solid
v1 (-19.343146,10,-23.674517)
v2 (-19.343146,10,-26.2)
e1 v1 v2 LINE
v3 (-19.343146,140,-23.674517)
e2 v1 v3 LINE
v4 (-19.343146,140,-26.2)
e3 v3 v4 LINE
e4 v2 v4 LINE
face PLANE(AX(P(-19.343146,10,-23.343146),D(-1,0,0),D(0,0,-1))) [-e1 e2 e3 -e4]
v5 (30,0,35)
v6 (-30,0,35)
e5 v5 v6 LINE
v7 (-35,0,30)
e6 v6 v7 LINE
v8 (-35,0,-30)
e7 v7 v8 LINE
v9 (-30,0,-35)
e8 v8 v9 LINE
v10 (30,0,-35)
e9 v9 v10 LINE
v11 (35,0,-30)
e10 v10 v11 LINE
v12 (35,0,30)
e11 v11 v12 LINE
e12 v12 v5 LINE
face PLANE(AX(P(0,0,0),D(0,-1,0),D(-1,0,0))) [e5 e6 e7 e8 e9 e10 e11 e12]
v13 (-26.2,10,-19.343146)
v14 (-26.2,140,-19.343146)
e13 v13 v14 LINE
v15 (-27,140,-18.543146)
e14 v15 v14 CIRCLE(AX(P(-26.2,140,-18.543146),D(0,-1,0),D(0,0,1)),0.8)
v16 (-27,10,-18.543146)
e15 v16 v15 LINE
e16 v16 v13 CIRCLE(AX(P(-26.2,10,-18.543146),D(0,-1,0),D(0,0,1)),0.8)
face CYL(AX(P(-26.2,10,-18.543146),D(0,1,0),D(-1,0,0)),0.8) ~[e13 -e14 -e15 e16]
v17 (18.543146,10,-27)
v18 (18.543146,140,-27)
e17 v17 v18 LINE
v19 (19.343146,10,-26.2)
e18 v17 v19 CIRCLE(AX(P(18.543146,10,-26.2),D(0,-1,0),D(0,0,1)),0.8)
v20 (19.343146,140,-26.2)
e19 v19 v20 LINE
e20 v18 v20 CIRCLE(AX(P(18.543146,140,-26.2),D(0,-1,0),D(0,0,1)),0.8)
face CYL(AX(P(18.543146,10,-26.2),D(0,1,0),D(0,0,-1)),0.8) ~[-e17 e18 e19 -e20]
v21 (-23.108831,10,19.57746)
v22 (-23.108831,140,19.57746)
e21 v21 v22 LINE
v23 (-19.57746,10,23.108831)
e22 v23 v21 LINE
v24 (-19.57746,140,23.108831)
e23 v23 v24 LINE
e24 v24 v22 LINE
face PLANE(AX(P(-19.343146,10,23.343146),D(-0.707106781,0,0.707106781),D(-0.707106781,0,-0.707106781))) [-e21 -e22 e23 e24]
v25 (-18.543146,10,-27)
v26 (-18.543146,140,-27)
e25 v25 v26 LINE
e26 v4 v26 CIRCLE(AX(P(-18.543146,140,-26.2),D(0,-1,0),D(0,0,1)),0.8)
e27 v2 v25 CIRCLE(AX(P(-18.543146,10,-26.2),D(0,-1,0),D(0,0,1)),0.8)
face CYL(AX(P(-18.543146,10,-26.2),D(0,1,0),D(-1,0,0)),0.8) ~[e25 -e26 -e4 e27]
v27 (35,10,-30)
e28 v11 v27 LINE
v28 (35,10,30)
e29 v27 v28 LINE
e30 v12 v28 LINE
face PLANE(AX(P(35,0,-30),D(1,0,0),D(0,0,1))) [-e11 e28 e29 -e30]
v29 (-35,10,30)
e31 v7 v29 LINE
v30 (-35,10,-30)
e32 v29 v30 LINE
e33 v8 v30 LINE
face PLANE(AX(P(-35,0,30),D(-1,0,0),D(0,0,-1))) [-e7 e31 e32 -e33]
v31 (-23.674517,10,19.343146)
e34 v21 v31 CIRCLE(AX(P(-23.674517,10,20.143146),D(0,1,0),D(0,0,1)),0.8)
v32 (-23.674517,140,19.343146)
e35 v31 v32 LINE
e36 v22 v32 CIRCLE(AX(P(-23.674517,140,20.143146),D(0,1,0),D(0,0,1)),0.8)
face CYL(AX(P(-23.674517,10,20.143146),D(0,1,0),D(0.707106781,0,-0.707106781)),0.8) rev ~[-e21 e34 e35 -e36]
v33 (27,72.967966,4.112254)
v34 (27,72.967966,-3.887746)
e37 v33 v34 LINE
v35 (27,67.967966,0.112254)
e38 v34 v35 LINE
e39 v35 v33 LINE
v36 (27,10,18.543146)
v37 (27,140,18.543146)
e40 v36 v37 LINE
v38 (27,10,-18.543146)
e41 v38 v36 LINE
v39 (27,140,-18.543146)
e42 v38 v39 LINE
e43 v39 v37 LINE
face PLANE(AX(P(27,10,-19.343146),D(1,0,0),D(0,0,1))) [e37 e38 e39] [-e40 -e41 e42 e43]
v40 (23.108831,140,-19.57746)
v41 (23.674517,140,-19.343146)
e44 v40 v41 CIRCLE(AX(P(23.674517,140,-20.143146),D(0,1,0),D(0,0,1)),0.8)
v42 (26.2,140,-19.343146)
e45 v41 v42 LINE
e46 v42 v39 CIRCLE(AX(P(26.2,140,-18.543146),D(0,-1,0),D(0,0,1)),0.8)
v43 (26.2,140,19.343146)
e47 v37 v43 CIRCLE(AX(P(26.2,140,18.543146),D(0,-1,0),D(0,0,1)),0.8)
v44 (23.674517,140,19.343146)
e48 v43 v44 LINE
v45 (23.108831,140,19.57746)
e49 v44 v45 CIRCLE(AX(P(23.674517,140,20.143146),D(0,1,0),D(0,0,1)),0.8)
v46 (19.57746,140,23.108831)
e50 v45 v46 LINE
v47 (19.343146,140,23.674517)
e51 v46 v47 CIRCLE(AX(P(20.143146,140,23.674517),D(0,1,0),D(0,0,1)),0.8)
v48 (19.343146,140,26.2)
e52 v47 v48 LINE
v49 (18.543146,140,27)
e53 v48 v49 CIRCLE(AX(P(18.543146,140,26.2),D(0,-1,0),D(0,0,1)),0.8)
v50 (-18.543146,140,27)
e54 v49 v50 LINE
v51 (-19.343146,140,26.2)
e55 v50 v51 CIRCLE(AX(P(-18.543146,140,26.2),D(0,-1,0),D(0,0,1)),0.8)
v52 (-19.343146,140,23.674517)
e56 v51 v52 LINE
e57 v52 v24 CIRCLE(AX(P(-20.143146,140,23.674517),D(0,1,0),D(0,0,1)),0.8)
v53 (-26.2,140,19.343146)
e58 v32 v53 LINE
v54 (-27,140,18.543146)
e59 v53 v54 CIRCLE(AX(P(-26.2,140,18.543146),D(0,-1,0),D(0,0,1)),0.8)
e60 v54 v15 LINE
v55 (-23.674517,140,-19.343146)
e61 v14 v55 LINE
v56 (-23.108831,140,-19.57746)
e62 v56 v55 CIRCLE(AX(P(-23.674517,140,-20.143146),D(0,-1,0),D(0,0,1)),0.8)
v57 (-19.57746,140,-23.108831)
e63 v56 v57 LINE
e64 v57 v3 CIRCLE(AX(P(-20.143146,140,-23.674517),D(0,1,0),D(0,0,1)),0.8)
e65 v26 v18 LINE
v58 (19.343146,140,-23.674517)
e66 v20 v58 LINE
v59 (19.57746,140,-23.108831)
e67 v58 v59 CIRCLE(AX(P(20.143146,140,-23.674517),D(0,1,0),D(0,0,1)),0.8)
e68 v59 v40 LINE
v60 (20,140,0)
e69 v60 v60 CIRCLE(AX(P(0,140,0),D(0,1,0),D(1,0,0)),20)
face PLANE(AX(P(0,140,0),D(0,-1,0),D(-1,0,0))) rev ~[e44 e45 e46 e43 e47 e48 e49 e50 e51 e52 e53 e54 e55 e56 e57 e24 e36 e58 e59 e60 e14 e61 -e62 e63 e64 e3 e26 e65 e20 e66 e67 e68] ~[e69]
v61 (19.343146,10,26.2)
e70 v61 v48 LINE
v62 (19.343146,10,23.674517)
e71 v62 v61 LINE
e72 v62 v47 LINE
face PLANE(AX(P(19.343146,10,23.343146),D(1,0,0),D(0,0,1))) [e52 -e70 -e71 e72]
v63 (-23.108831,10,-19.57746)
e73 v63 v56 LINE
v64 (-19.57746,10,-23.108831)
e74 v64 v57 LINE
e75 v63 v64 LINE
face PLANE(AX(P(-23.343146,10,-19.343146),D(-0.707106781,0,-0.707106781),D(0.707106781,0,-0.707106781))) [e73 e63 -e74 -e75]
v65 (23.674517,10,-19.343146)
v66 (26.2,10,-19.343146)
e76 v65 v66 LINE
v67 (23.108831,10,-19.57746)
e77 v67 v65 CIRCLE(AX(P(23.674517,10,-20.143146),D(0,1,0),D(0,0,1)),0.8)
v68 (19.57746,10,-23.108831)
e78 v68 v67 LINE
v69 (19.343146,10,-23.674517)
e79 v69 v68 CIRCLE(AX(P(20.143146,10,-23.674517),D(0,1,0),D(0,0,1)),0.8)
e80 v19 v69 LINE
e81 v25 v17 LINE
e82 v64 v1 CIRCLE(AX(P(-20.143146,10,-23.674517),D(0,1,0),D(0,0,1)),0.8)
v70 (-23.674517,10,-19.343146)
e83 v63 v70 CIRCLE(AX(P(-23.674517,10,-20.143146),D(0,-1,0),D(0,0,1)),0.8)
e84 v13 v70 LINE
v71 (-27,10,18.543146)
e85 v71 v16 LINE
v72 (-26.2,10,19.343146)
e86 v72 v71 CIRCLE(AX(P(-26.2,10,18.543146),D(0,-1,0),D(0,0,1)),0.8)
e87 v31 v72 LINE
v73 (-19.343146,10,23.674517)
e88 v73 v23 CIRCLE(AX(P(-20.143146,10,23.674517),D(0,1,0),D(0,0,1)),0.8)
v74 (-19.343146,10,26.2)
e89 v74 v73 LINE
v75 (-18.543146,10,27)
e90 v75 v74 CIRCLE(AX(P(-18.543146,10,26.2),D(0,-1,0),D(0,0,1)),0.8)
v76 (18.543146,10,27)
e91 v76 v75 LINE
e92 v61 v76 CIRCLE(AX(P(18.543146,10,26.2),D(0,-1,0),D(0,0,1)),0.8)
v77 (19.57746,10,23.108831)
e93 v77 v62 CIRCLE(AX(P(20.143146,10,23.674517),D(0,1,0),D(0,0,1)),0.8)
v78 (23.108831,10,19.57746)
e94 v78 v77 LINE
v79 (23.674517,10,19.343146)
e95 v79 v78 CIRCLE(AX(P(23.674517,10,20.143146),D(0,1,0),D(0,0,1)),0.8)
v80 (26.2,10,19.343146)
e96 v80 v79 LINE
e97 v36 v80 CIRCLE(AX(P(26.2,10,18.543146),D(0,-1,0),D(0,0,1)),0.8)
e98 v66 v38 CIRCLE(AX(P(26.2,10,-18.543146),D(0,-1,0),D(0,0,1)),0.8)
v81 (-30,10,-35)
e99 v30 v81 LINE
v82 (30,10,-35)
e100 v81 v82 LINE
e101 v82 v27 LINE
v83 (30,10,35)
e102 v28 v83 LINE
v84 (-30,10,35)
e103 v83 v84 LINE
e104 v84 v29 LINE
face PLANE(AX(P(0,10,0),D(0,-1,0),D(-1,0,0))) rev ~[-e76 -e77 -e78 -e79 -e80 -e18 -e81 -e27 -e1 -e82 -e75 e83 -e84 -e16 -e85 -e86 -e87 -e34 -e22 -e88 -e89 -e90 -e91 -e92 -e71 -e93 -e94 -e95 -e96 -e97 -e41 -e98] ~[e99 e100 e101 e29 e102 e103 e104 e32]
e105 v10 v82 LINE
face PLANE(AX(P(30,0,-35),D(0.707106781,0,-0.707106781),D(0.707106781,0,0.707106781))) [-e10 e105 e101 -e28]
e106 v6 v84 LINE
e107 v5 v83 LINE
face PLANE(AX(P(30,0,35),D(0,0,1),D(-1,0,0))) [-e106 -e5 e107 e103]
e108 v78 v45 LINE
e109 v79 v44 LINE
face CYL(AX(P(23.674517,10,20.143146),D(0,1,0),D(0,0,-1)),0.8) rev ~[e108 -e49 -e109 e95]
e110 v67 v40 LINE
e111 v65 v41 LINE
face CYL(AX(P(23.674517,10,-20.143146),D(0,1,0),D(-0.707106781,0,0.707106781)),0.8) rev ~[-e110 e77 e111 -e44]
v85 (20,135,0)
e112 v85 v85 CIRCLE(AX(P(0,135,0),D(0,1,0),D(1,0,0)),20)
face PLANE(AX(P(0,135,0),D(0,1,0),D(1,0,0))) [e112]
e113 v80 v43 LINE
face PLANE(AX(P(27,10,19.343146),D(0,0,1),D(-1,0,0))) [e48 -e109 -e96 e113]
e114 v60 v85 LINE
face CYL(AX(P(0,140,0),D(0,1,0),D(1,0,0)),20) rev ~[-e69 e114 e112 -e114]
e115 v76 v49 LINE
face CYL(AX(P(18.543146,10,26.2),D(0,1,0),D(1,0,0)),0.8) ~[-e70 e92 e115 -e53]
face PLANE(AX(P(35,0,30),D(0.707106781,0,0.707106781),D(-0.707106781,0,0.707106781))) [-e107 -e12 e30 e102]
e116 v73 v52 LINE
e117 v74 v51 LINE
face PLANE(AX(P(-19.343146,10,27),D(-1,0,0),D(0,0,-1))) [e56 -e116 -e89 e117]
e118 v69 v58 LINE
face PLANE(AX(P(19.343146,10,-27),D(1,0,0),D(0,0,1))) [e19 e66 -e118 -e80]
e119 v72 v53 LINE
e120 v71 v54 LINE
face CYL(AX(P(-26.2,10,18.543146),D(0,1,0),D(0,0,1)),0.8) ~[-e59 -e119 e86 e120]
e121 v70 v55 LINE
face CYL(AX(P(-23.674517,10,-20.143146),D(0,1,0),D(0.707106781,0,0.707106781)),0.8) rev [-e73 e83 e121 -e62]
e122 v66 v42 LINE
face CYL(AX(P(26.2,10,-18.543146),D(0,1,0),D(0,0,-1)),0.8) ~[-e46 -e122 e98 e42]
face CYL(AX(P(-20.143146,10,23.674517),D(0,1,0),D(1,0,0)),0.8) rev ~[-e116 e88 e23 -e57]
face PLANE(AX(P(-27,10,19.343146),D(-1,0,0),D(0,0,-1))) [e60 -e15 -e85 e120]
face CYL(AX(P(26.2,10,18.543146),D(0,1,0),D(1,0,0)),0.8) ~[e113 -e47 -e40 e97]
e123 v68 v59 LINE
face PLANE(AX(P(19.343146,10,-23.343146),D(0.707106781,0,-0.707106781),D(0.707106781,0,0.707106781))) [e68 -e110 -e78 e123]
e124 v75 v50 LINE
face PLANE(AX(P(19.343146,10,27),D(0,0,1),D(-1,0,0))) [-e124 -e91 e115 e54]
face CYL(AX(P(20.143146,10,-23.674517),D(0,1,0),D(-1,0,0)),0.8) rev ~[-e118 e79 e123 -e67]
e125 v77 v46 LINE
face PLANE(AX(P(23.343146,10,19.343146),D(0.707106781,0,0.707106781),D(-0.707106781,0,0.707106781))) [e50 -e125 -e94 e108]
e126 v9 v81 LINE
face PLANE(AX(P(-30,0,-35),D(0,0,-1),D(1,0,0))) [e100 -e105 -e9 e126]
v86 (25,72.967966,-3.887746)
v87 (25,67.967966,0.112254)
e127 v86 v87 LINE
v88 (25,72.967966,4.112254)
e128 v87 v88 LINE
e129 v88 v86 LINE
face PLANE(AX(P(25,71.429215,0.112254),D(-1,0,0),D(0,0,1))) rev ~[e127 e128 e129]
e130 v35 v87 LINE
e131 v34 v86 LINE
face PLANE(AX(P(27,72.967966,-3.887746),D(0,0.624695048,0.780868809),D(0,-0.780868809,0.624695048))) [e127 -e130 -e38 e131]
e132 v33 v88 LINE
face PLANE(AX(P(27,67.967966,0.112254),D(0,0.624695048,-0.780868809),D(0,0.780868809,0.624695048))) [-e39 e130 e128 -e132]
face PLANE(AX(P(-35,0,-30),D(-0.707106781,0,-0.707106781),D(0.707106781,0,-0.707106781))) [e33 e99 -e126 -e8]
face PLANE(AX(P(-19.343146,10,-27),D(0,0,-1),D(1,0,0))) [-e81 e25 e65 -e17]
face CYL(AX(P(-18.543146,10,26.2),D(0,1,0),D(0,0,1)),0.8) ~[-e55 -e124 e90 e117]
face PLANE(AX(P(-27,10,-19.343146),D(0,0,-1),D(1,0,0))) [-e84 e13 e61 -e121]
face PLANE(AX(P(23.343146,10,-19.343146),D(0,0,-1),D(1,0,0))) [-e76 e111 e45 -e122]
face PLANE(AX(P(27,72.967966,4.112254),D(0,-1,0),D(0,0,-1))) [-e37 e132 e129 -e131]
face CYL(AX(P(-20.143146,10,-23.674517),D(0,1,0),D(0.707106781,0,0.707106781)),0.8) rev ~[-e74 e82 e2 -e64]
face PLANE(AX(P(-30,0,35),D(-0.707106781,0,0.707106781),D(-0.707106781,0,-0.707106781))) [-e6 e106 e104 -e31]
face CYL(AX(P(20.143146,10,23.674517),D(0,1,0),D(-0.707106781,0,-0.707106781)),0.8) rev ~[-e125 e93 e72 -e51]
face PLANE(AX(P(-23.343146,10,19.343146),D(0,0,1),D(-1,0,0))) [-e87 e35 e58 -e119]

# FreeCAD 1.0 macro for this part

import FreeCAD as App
import Part
import Sketcher

V = App.Vector
Q = App.Units.Quantity


def edges_at(feature, points):
    """Names of the edges that pass closest to the given points."""
    edges = feature.Shape.Edges
    near = lambda p: min(range(len(edges)), key=lambda i: edges[i].distToShape(Part.Vertex(*p))[0])
    return sorted({f"Edge{near(p) + 1}" for p in points})

doc = App.newDocument("Part")
body = doc.addObject("PartDesign::Body", "Body")

# Sketch on XZ plane
sketch1 = body.newObject("Sketcher::SketchObject", "Sketch")
sketch1.AttachmentSupport = (doc.getObject("XZ_Plane"), [""])
sketch1.MapMode = "FlatFace"
sketch1.addGeometry(Part.LineSegment(V(-30, -35, 0), V(-35, -30, 0)), False)
sketch1.addGeometry(Part.LineSegment(V(-35, -30, 0), V(-35, 30, 0)), False)
sketch1.addGeometry(Part.LineSegment(V(-35, 30, 0), V(-30, 35, 0)), False)
sketch1.addGeometry(Part.LineSegment(V(-30, 35, 0), V(30, 35, 0)), False)
sketch1.addGeometry(Part.LineSegment(V(30, 35, 0), V(35, 30, 0)), False)
sketch1.addGeometry(Part.LineSegment(V(35, 30, 0), V(35, -30, 0)), False)
sketch1.addGeometry(Part.LineSegment(V(35, -30, 0), V(30, -35, 0)), False)
sketch1.addGeometry(Part.LineSegment(V(30, -35, 0), V(-30, -35, 0)), False)
sketch1.addConstraint(Sketcher.Constraint("Coincident", 0, 2, 1, 1))
sketch1.addConstraint(Sketcher.Constraint("Coincident", 1, 2, 2, 1))
sketch1.addConstraint(Sketcher.Constraint("Coincident", 2, 2, 3, 1))
sketch1.addConstraint(Sketcher.Constraint("Coincident", 3, 2, 4, 1))
sketch1.addConstraint(Sketcher.Constraint("Coincident", 4, 2, 5, 1))
sketch1.addConstraint(Sketcher.Constraint("Coincident", 5, 2, 6, 1))
sketch1.addConstraint(Sketcher.Constraint("Coincident", 6, 2, 7, 1))
sketch1.addConstraint(Sketcher.Constraint("Coincident", 7, 2, 0, 1))
sketch1.addConstraint(Sketcher.Constraint("Vertical", 1))
sketch1.addConstraint(Sketcher.Constraint("Horizontal", 3))
sketch1.addConstraint(Sketcher.Constraint("Vertical", 5))
sketch1.addConstraint(Sketcher.Constraint("Horizontal", 7))
sketch1.addConstraint(Sketcher.Constraint("Symmetric", 0, 2, 4, 2, -1, 1))
sketch1.addConstraint(Sketcher.Constraint("Symmetric", 2, 2, 6, 2, -1, 1))
sketch1.addConstraint(Sketcher.Constraint("Perpendicular", 0, 2))
sketch1.addConstraint(Sketcher.Constraint("Perpendicular", 2, 4))
sketch1.addConstraint(Sketcher.Constraint("Perpendicular", 4, 6))
sketch1.addConstraint(Sketcher.Constraint("Horizontal", 1, 2, 4, 2))
sketch1.addConstraint(Sketcher.Constraint("Vertical", 3, 2, 6, 2))
sketch1.addConstraint(Sketcher.Constraint("Equal", 7, 1))
sketch1.addConstraint(Sketcher.Constraint("DistanceX", 3, 1, 3, 2, Q("60 mm")))
sketch1.addConstraint(Sketcher.Constraint("DistanceX", 0, 2, -1, 1, Q("35 mm")))
pad1 = body.newObject("PartDesign::Pad", "Pad")
pad1.Profile = sketch1
pad1.Length = 10
pad1.Reversed = True

# Sketch on XZ plane
sketch2 = body.newObject("Sketcher::SketchObject", "Sketch001")
sketch2.AttachmentSupport = (doc.getObject("XZ_Plane"), [""])
sketch2.MapMode = "FlatFace"
sketch2.AttachmentOffset = App.Placement(V(0, 0, -10), App.Rotation())
sketch2.addGeometry(Part.LineSegment(V(-19.3, -23.3, 0), V(-23.3, -19.3, 0)), False)
sketch2.addGeometry(Part.LineSegment(V(-23.3, -19.3, 0), V(-27, -19.3, 0)), False)
sketch2.addGeometry(Part.LineSegment(V(-27, -19.3, 0), V(-27, 19.3, 0)), False)
sketch2.addGeometry(Part.LineSegment(V(-27, 19.3, 0), V(-23.3, 19.3, 0)), False)
sketch2.addGeometry(Part.LineSegment(V(-23.3, 19.3, 0), V(-19.3, 23.3, 0)), False)
sketch2.addGeometry(Part.LineSegment(V(-19.3, 23.3, 0), V(-19.3, 27, 0)), False)
sketch2.addGeometry(Part.LineSegment(V(-19.3, 27, 0), V(19.3, 27, 0)), False)
sketch2.addGeometry(Part.LineSegment(V(19.3, 27, 0), V(19.3, 23.3, 0)), False)
sketch2.addGeometry(Part.LineSegment(V(19.3, 23.3, 0), V(23.3, 19.3, 0)), False)
sketch2.addGeometry(Part.LineSegment(V(23.3, 19.3, 0), V(27, 19.3, 0)), False)
sketch2.addGeometry(Part.LineSegment(V(27, 19.3, 0), V(27, -19.3, 0)), False)
sketch2.addGeometry(Part.LineSegment(V(27, -19.3, 0), V(23.3, -19.3, 0)), False)
sketch2.addGeometry(Part.LineSegment(V(23.3, -19.3, 0), V(19.3, -23.3, 0)), False)
sketch2.addGeometry(Part.LineSegment(V(19.3, -23.3, 0), V(19.3, -27, 0)), False)
sketch2.addGeometry(Part.LineSegment(V(19.3, -27, 0), V(-19.3, -27, 0)), False)
sketch2.addGeometry(Part.LineSegment(V(-19.3, -27, 0), V(-19.3, -23.3, 0)), False)
sketch2.addConstraint(Sketcher.Constraint("Coincident", 0, 2, 1, 1))
sketch2.addConstraint(Sketcher.Constraint("Coincident", 1, 2, 2, 1))
sketch2.addConstraint(Sketcher.Constraint("Coincident", 2, 2, 3, 1))
sketch2.addConstraint(Sketcher.Constraint("Coincident", 3, 2, 4, 1))
sketch2.addConstraint(Sketcher.Constraint("Coincident", 4, 2, 5, 1))
sketch2.addConstraint(Sketcher.Constraint("Coincident", 5, 2, 6, 1))
sketch2.addConstraint(Sketcher.Constraint("Coincident", 6, 2, 7, 1))
sketch2.addConstraint(Sketcher.Constraint("Coincident", 7, 2, 8, 1))
sketch2.addConstraint(Sketcher.Constraint("Coincident", 8, 2, 9, 1))
sketch2.addConstraint(Sketcher.Constraint("Coincident", 9, 2, 10, 1))
sketch2.addConstraint(Sketcher.Constraint("Coincident", 10, 2, 11, 1))
sketch2.addConstraint(Sketcher.Constraint("Coincident", 11, 2, 12, 1))
sketch2.addConstraint(Sketcher.Constraint("Coincident", 12, 2, 13, 1))
sketch2.addConstraint(Sketcher.Constraint("Coincident", 13, 2, 14, 1))
sketch2.addConstraint(Sketcher.Constraint("Coincident", 14, 2, 15, 1))
sketch2.addConstraint(Sketcher.Constraint("Coincident", 15, 2, 0, 1))
sketch2.addConstraint(Sketcher.Constraint("Horizontal", 1))
sketch2.addConstraint(Sketcher.Constraint("Vertical", 2))
sketch2.addConstraint(Sketcher.Constraint("Horizontal", 3))
sketch2.addConstraint(Sketcher.Constraint("Vertical", 5))
sketch2.addConstraint(Sketcher.Constraint("Horizontal", 6))
sketch2.addConstraint(Sketcher.Constraint("Vertical", 7))
sketch2.addConstraint(Sketcher.Constraint("Horizontal", 9))
sketch2.addConstraint(Sketcher.Constraint("Vertical", 10))
sketch2.addConstraint(Sketcher.Constraint("Horizontal", 11))
sketch2.addConstraint(Sketcher.Constraint("Vertical", 13))
sketch2.addConstraint(Sketcher.Constraint("Horizontal", 14))
sketch2.addConstraint(Sketcher.Constraint("Vertical", 15))
sketch2.addConstraint(Sketcher.Constraint("Symmetric", 0, 2, 8, 2, -1, 1))
sketch2.addConstraint(Sketcher.Constraint("Symmetric", 2, 2, 10, 2, -1, 1))
sketch2.addConstraint(Sketcher.Constraint("Symmetric", 4, 2, 12, 2, -1, 1))
sketch2.addConstraint(Sketcher.Constraint("Symmetric", 6, 2, 14, 2, -1, 1))
sketch2.addConstraint(Sketcher.Constraint("Symmetric", 4, 2, 7, 2, -2))
sketch2.addConstraint(Sketcher.Constraint("Symmetric", 3, 2, 8, 2, -2))
sketch2.addConstraint(Sketcher.Constraint("Perpendicular", 0, 4))
sketch2.addConstraint(Sketcher.Constraint("Perpendicular", 4, 8))
sketch2.addConstraint(Sketcher.Constraint("Perpendicular", 8, 12))
sketch2.addConstraint(Sketcher.Constraint("Equal", 14, 2))
sketch2.addConstraint(Sketcher.Constraint("Equal", 11, 5))
sketch2.addConstraint(Sketcher.Constraint("DistanceX", 1, 2, -1, 1, Q("27 mm")))
sketch2.addConstraint(Sketcher.Constraint("DistanceX", 3, 2, 4, 2, Q("4 mm")))
sketch2.addConstraint(Sketcher.Constraint("DistanceX", 6, 1, 6, 2, Q("38.686292 mm")))
pad2 = body.newObject("PartDesign::Pad", "Pad001")
pad2.Profile = sketch2
pad2.Length = 130
pad2.Reversed = True
doc.recompute()

fillet = body.newObject("PartDesign::Fillet", "Fillet")
fillet.Base = (pad2, edges_at(pad2, [
    (27, 75, 19.343),
    (27, 75, -19.343),
    (23.343, 75, -19.343),
    (19.343, 75, -23.343),
    (19.343, 75, -27),
    (-19.343, 75, -27),
    (-19.343, 75, -23.343),
    (-23.343, 75, -19.343),
    (-27, 75, -19.343),
    (-27, 75, 19.343),
    (-23.343, 75, 19.343),
    (-19.343, 75, 23.343),
    (-19.343, 75, 27),
    (19.343, 75, 27),
    (19.343, 75, 23.343),
    (23.343, 75, 19.343),
]))
fillet.Radius = 0.8

# Sketch on XZ plane
sketch3 = body.newObject("Sketcher::SketchObject", "Sketch002")
sketch3.AttachmentSupport = (doc.getObject("XZ_Plane"), [""])
sketch3.MapMode = "FlatFace"
sketch3.AttachmentOffset = App.Placement(V(0, 0, -140), App.Rotation())
sketch3.addGeometry(Part.Circle(V(0, 0, 0), V(0, 0, 1), 20), False)
sketch3.addConstraint(Sketcher.Constraint("Coincident", 0, 3, -1, 1))
sketch3.addConstraint(Sketcher.Constraint("Diameter", 0, Q("40 mm")))
pocket1 = body.newObject("PartDesign::Pocket", "Pocket")
pocket1.Profile = sketch3
pocket1.Length = 5
pocket1.Reversed = True

# Sketch on YZ plane
sketch4 = body.newObject("Sketcher::SketchObject", "Sketch003")
sketch4.AttachmentSupport = (doc.getObject("YZ_Plane"), [""])
sketch4.MapMode = "FlatFace"
sketch4.AttachmentOffset = App.Placement(V(0, 0, 27), App.Rotation())
sketch4.addGeometry(Part.LineSegment(V(73, -4, 0), V(73, 4, 0)), False)
sketch4.addGeometry(Part.LineSegment(V(73, 4, 0), V(68, 0, 0)), False)
sketch4.addGeometry(Part.LineSegment(V(68, 0, 0), V(73, -4, 0)), False)
sketch4.addConstraint(Sketcher.Constraint("Coincident", 0, 2, 1, 1))
sketch4.addConstraint(Sketcher.Constraint("Coincident", 1, 2, 2, 1))
sketch4.addConstraint(Sketcher.Constraint("Coincident", 2, 2, 0, 1))
sketch4.addConstraint(Sketcher.Constraint("Vertical", 0))
sketch4.addConstraint(Sketcher.Constraint("Equal", 1, 2))
sketch4.addConstraint(Sketcher.Constraint("DistanceY", 0, 1, 0, 2, Q("8 mm")))
sketch4.addConstraint(Sketcher.Constraint("DistanceX", 1, 2, 0, 2, Q("5 mm")))
sketch4.addConstraint(Sketcher.Constraint("DistanceX", -1, 1, 0, 2, Q("72.967966 mm")))
sketch4.addConstraint(Sketcher.Constraint("DistanceY", -1, 1, 0, 2, Q("4.112254 mm")))
pocket2 = body.newObject("PartDesign::Pocket", "Pocket001")
pocket2.Profile = sketch4
pocket2.Length = 2

doc.recompute()
